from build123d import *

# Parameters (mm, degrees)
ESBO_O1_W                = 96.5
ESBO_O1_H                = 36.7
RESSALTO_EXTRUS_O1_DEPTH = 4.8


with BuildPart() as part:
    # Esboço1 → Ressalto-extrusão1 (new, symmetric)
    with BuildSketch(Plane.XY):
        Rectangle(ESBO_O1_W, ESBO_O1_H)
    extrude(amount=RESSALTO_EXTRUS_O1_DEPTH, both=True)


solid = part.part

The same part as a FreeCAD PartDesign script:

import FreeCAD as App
import Part
import Sketcher

doc = App.newDocument("Part")
params = doc.addObject("Spreadsheet::Sheet", "Params")
for row, (alias, value) in enumerate([
    ("sketch1_width", "96.5 mm"),
    ("sketch1_height", "36.7 mm"),
    ("pad1_length", "9.6 mm"),
], start=1):
    params.set(f"A{row}", alias)
    params.set(f"B{row}", "=" + value)
    params.setAlias(f"B{row}", alias)

body = doc.addObject("PartDesign::Body", "Body")

# Sketch on XY plane
sketch1 = body.newObject("Sketcher::SketchObject", "Sketch")
sketch1.AttachmentSupport = (doc.getObject("XY_Plane"), [""])
sketch1.MapMode = "FlatFace"
sketch1.addGeometry([
    Part.LineSegment(App.Vector(-48, 18, 0), App.Vector(-48, -18, 0)),
    Part.LineSegment(App.Vector(-48, -18, 0), App.Vector(48, -18, 0)),
    Part.LineSegment(App.Vector(48, -18, 0), App.Vector(48, 18, 0)),
    Part.LineSegment(App.Vector(48, 18, 0), App.Vector(-48, 18, 0)),
], False)
sketch1.addConstraint([
    Sketcher.Constraint("Coincident", 0, 2, 1, 1),
    Sketcher.Constraint("Coincident", 1, 2, 2, 1),
    Sketcher.Constraint("Coincident", 2, 2, 3, 1),
    Sketcher.Constraint("Coincident", 3, 2, 0, 1),
    Sketcher.Constraint("Vertical", 0),
    Sketcher.Constraint("Horizontal", 1),
    Sketcher.Constraint("Vertical", 2),
    Sketcher.Constraint("Horizontal", 3),
    Sketcher.Constraint("Symmetric", 0, 2, 2, 2, -1, 1),
    Sketcher.Constraint("DistanceX", 1, 1, 1, 2, 96.5),
    Sketcher.Constraint("DistanceY", 0, 2, 0, 1, 36.7),
])
sketch1.setExpression("Constraints[9]", "Params.sketch1_width")
sketch1.setExpression("Constraints[10]", "Params.sketch1_height")
pad1 = body.newObject("PartDesign::Pad", "Pad")
pad1.Profile = sketch1
pad1.setExpression("Length", "Params.pad1_length")
pad1.Midplane = True

doc.recompute()
